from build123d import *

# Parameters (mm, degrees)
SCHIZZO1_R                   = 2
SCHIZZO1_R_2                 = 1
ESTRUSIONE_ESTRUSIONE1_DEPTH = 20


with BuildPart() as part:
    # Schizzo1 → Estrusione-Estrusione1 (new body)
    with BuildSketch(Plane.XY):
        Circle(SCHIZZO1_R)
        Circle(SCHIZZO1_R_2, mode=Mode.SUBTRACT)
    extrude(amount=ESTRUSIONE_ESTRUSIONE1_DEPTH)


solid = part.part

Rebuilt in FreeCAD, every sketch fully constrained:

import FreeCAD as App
import Part
import Sketcher

doc = App.newDocument("Part")
body = doc.addObject("PartDesign::Body", "Body")

sketch1 = body.newObject("Sketcher::SketchObject", "Sketch")
sketch1.AttachmentSupport = (doc.getObject("XY_Plane"), [""])
sketch1.MapMode = "FlatFace"
sketch1.addGeometry([
    Part.Circle(App.Vector(0, 0, 0), App.Vector(0, 0, 1), 2),
    Part.Circle(App.Vector(0, 0, 0), App.Vector(0, 0, 1), 1),
], False)
sketch1.addConstraint([
    Sketcher.Constraint("Coincident", 0, 3, -1, 1),
    Sketcher.Constraint("Coincident", 1, 3, -1, 1),
    Sketcher.Constraint("Diameter", 0, 4.0),
    Sketcher.Constraint("Diameter", 1, 2.0),
])
pad1 = body.newObject("PartDesign::Pad", "Pad")
pad1.Profile = sketch1
pad1.Length = 20

doc.recompute()
